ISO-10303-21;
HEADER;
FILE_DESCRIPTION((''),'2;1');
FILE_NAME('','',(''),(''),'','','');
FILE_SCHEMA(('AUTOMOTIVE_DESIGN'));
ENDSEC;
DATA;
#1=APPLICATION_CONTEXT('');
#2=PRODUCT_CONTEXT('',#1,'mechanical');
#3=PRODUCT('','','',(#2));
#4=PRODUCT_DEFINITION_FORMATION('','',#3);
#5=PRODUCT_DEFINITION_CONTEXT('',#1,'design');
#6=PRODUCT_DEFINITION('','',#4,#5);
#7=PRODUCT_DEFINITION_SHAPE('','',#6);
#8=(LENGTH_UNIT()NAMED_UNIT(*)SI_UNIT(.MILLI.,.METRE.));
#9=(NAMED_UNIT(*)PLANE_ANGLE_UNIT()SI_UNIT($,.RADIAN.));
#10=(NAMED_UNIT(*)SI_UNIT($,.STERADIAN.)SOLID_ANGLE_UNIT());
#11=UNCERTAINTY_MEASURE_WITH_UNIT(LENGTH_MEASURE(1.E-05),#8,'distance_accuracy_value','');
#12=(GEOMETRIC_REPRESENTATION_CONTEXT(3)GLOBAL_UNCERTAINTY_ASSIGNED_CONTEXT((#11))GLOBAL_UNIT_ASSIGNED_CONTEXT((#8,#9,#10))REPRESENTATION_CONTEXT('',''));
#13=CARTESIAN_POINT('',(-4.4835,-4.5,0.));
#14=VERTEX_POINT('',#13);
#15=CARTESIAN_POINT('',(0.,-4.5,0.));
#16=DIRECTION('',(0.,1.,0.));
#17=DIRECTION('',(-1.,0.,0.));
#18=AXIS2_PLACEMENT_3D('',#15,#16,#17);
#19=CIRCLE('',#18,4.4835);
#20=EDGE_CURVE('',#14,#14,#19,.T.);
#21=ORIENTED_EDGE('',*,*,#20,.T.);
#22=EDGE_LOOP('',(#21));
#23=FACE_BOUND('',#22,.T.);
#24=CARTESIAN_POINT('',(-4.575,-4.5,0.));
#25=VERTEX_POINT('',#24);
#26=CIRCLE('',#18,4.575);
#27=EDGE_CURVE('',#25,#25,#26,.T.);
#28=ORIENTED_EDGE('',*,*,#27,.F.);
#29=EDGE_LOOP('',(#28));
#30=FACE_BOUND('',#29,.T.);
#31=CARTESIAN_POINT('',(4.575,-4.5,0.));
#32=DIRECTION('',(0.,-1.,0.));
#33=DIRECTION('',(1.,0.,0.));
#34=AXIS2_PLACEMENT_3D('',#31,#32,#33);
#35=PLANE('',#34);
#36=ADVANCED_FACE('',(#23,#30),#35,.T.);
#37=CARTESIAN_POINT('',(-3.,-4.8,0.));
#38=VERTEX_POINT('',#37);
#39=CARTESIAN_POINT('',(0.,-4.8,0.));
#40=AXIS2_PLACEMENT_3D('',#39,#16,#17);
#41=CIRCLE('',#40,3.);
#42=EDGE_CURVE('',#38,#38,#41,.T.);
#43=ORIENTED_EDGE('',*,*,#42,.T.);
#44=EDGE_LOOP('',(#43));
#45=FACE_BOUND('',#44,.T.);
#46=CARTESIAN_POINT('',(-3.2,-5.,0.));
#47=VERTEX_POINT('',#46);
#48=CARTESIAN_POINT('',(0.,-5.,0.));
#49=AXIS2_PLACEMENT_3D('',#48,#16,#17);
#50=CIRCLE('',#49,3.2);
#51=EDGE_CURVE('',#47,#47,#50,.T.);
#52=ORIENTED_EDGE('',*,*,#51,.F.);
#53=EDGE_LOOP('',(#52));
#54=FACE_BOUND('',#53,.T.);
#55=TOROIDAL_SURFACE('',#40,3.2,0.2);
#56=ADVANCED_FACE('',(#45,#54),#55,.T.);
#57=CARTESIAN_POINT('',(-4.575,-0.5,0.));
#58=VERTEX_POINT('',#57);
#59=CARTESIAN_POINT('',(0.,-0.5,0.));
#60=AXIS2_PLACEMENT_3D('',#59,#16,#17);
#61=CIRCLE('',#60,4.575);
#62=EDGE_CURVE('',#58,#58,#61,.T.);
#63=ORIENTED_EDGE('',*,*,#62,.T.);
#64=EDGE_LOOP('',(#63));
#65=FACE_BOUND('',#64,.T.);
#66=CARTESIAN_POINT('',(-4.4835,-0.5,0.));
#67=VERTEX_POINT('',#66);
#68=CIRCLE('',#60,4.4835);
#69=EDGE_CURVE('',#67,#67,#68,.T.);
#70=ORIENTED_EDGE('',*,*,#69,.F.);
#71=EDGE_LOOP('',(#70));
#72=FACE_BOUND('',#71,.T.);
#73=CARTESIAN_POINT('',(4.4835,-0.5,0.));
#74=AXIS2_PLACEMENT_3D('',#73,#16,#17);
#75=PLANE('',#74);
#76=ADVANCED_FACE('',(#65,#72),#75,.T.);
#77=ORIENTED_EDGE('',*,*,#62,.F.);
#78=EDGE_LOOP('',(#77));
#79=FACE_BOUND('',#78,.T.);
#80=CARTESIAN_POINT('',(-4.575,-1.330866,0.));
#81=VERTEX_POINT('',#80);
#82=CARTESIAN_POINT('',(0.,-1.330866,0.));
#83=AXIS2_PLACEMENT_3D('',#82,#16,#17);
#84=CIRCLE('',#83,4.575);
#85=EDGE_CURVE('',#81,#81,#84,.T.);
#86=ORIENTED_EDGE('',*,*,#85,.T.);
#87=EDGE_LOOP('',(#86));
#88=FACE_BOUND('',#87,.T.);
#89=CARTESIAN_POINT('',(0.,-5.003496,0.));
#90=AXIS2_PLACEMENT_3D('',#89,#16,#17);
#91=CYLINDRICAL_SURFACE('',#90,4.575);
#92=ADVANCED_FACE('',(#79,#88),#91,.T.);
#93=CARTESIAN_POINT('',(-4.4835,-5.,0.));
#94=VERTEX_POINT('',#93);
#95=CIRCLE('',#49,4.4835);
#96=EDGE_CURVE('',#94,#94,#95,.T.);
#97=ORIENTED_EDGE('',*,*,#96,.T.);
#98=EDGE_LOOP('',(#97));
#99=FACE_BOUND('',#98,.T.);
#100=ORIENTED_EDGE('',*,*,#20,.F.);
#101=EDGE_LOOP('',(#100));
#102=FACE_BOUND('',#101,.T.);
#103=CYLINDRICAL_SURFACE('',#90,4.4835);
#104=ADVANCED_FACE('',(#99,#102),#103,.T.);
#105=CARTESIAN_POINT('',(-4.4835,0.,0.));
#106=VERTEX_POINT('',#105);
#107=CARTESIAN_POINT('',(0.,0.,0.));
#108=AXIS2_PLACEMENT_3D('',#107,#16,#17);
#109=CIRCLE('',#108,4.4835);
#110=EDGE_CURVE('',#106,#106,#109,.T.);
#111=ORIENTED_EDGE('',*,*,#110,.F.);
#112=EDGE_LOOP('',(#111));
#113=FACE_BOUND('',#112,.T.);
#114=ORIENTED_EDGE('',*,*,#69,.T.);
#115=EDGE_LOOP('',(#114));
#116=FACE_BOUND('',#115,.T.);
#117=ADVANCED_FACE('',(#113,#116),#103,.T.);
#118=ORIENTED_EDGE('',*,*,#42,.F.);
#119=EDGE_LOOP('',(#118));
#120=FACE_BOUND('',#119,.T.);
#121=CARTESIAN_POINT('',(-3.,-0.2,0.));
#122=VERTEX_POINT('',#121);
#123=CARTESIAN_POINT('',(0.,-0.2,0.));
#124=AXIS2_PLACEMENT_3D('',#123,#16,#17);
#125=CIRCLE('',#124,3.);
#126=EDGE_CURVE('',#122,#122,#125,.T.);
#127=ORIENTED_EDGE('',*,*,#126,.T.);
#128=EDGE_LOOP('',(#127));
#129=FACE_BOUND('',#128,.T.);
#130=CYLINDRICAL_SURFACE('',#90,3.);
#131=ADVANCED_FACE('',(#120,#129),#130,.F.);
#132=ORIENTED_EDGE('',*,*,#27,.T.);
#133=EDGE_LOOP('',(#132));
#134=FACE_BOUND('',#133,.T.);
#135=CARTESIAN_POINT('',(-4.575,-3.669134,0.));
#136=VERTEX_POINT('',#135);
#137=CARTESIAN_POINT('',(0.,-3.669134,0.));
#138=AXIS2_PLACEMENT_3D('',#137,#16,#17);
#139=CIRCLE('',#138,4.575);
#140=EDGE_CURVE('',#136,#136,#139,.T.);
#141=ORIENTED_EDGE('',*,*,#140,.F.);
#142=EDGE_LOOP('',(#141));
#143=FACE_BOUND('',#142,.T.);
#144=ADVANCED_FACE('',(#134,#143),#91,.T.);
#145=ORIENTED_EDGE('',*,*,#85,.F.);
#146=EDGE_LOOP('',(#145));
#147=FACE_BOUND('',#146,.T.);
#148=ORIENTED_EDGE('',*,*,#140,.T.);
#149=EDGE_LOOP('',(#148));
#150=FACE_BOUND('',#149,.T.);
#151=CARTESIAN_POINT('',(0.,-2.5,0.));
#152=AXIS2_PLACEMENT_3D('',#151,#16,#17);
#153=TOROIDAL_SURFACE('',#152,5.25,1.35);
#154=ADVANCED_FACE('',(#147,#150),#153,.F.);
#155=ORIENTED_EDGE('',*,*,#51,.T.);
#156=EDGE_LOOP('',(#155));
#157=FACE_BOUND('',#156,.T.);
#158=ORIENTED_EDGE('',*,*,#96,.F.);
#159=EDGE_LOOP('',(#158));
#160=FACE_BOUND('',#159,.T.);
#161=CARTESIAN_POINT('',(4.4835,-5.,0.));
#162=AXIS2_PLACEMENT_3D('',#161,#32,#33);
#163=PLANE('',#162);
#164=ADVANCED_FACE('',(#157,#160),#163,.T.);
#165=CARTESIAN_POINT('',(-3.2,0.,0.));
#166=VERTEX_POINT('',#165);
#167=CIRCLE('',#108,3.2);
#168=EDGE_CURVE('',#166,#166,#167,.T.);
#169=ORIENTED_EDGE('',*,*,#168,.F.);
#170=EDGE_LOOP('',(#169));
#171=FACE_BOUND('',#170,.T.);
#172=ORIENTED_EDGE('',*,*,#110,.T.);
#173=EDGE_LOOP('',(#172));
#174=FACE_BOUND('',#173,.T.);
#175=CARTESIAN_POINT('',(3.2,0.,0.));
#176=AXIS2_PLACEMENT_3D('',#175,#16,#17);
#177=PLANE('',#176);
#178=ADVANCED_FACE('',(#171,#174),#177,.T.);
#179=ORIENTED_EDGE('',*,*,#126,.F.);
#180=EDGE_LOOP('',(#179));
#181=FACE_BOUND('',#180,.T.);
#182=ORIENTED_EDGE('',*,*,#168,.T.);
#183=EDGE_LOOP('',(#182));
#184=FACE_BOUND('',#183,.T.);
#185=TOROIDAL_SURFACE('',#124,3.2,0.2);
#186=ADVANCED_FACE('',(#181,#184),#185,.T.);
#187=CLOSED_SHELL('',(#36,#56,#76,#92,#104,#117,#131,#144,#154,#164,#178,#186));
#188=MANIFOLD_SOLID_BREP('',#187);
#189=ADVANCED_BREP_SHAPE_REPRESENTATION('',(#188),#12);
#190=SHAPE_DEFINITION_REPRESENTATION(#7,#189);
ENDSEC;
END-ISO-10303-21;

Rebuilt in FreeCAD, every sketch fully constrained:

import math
import FreeCAD as App
import Part
import Sketcher
from FreeCAD import Vector

doc = App.newDocument("Part")
body = doc.addObject("PartDesign::Body", "Body")

sketch1 = body.newObject("Sketcher::SketchObject", "Sketch")
sketch1.AttachmentSupport = (doc.getObject("XY_Plane"), [""])
sketch1.MapMode = "FlatFace"
sketch1.addGeometry([
    Part.LineSegment(Vector(4.58, -0.5, 0), Vector(4.58, -1.33, 0)),
    Part.ArcOfCircle(Part.Circle(Vector(5.25, -2.5, 0), Vector(0, 0, 1), 1.35), math.radians(120), math.radians(240)),
    Part.LineSegment(Vector(4.58, -3.67, 0), Vector(4.58, -4.5, 0)),
    Part.LineSegment(Vector(4.58, -4.5, 0), Vector(4.48, -4.5, 0)),
    Part.LineSegment(Vector(4.48, -4.5, 0), Vector(4.48, -5, 0)),
    Part.LineSegment(Vector(4.48, -5, 0), Vector(3.2, -5, 0)),
    Part.ArcOfCircle(Part.Circle(Vector(3.2, -4.8, 0), Vector(0, 0, 1), 0.2), math.radians(-180), math.radians(-90)),
    Part.LineSegment(Vector(3, -4.8, 0), Vector(3, -0.2, 0)),
    Part.ArcOfCircle(Part.Circle(Vector(3.2, -0.2, 0), Vector(0, 0, 1), 0.2), math.radians(90), math.radians(180)),
    Part.LineSegment(Vector(3.2, 0, 0), Vector(4.48, 0, 0)),
    Part.LineSegment(Vector(4.48, 0, 0), Vector(4.48, -0.5, 0)),
    Part.LineSegment(Vector(4.48, -0.5, 0), Vector(4.58, -0.5, 0)),
], False)
sketch1.addConstraint([
    Sketcher.Constraint("Coincident", 0, 2, 1, 1),
    Sketcher.Constraint("Coincident", 1, 2, 2, 1),
    Sketcher.Constraint("Coincident", 2, 2, 3, 1),
    Sketcher.Constraint("Coincident", 3, 2, 4, 1),
    Sketcher.Constraint("Coincident", 4, 2, 5, 1),
    Sketcher.Constraint("Tangent", 5, 2, 6, 2),
    Sketcher.Constraint("Tangent", 6, 1, 7, 1),
    Sketcher.Constraint("Tangent", 7, 2, 8, 2),
    Sketcher.Constraint("Tangent", 8, 1, 9, 1),
    Sketcher.Constraint("Coincident", 9, 2, 10, 1),
    Sketcher.Constraint("Coincident", 10, 2, 11, 1),
    Sketcher.Constraint("Coincident", 11, 2, 0, 1),
    Sketcher.Constraint("Vertical", 0),
    Sketcher.Constraint("Vertical", 2),
    Sketcher.Constraint("Horizontal", 3),
    Sketcher.Constraint("Vertical", 4),
    Sketcher.Constraint("Horizontal", 5),
    Sketcher.Constraint("Vertical", 7),
    Sketcher.Constraint("Horizontal", 9),
    Sketcher.Constraint("Vertical", 10),
    Sketcher.Constraint("Horizontal", 11),
    Sketcher.Constraint("Equal", 6, 8),
    Sketcher.Constraint("PointOnObject", 8, 1, -1),
    Sketcher.Constraint("Vertical", 0, 2, 1, 2),
    Sketcher.Constraint("Vertical", 4, 2, 9, 2),
    Sketcher.Constraint("Equal", 0, 2),
    Sketcher.Constraint("Equal", 4, 10),
    Sketcher.Constraint("Radius", 6, 0.2),
    Sketcher.Constraint("Radius", 1, 1.35),
    Sketcher.Constraint("DistanceY", 4, 2, 4, 1, 0.5),
    Sketcher.Constraint("DistanceY", 7, 1, 7, 2, 4.6),
    Sketcher.Constraint("DistanceX", -1, 1, 6, 1, 3.0),
    Sketcher.Constraint("DistanceX", -1, 1, 1, 3, 5.25),
    Sketcher.Constraint("DistanceX", 3, 2, 3, 1, 0.0915),
    Sketcher.Constraint("DistanceX", 5, 2, 5, 1, 1.2835),
])
revolution = body.newObject("PartDesign::Revolution", "Revolution")
revolution.Profile = sketch1
revolution.ReferenceAxis = (sketch1, ["V_Axis"])
revolution.Angle = 360

doc.recompute()
